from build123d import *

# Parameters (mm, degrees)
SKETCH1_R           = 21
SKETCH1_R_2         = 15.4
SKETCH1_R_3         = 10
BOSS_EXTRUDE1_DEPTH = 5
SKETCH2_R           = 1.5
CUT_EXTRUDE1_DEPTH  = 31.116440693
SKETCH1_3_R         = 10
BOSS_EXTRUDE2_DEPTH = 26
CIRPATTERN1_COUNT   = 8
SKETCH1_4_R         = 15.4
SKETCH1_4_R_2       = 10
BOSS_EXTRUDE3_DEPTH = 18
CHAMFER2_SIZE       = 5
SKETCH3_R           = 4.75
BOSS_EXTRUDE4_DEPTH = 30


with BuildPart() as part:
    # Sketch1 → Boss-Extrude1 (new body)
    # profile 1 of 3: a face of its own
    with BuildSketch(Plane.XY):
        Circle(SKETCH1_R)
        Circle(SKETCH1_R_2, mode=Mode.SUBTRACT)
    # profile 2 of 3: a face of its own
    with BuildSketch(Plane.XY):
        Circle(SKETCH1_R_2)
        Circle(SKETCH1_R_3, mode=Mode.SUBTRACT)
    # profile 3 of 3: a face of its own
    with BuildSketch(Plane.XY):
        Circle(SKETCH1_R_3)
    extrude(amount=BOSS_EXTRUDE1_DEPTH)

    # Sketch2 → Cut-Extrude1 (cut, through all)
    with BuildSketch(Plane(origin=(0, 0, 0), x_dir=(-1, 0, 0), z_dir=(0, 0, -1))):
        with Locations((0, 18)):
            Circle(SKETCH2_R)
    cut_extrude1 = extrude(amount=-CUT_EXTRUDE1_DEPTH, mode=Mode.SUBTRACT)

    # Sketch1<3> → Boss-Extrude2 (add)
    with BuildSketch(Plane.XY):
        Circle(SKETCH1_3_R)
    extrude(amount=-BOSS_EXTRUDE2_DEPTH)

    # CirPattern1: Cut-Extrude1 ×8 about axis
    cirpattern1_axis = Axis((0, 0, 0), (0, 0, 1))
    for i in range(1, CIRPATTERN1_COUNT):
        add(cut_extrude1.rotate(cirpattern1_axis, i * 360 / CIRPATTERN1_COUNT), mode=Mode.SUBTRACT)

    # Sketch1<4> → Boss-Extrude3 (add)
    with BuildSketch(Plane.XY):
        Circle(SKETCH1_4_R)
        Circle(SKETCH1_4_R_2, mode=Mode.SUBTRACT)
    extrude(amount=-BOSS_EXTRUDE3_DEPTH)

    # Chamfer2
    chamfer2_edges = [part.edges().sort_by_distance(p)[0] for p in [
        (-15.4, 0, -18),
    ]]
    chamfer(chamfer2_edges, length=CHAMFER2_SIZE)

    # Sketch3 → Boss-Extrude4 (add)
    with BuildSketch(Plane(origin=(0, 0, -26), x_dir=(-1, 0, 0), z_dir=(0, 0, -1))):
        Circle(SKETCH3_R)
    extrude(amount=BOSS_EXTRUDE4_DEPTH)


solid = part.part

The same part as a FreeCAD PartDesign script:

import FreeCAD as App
import Part
import Sketcher


def edges_at(feature, points):
    """Names of the edges that pass closest to the given points."""
    edges = feature.Shape.Edges
    near = lambda p: min(range(len(edges)), key=lambda i: edges[i].distToShape(Part.Vertex(*p))[0])
    return sorted({f"Edge{near(p) + 1}" for p in points})

doc = App.newDocument("Part")
body = doc.addObject("PartDesign::Body", "Body")

# Sketch on XY plane
sketch1 = doc.addObject("Sketcher::SketchObject", "Sketch")
body.addObject(sketch1)
sketch1.AttachmentSupport = (doc.XY_Plane, [""])
sketch1.MapMode = "FlatFace"
sketch1.addGeometry(Part.Circle(App.Vector(0, 0, 0), App.Vector(0, 0, 1), 21), False)
sketch1.addConstraint([
    Sketcher.Constraint("Coincident", 0, 3, -1, 1),
    Sketcher.Constraint("Diameter", 0, 42.0),
])
pad1 = doc.addObject("PartDesign::Pad", "Pad")
body.addObject(pad1)
pad1.Profile = sketch1
pad1.Length = 5

# Sketch on XY plane
sketch2 = doc.addObject("Sketcher::SketchObject", "Sketch001")
body.addObject(sketch2)
sketch2.AttachmentSupport = (doc.XY_Plane, [""])
sketch2.MapMode = "FlatFace"
sketch2.addGeometry(Part.Circle(App.Vector(0, 18, 0), App.Vector(0, 0, 1), 1.5), False)
sketch2.addConstraint([
    Sketcher.Constraint("PointOnObject", 0, 3, -2),
    Sketcher.Constraint("Diameter", 0, 3.0),
    Sketcher.Constraint("DistanceY", -1, 1, 0, 3, 18.0),
])
pocket1 = doc.addObject("PartDesign::Pocket", "Pocket")
body.addObject(pocket1)
pocket1.Profile = sketch2
pocket1.Type = "ThroughAll"
pocket1.Reversed = True

# Sketch on XY plane
sketch3 = doc.addObject("Sketcher::SketchObject", "Sketch002")
body.addObject(sketch3)
sketch3.AttachmentSupport = (doc.XY_Plane, [""])
sketch3.MapMode = "FlatFace"
sketch3.addGeometry(Part.Circle(App.Vector(0, 0, 0), App.Vector(0, 0, 1), 10), False)
sketch3.addConstraint([
    Sketcher.Constraint("Coincident", 0, 3, -1, 1),
    Sketcher.Constraint("Diameter", 0, 20.0),
])
pad2 = doc.addObject("PartDesign::Pad", "Pad001")
body.addObject(pad2)
pad2.Profile = sketch3
pad2.Length = 26
pad2.Reversed = True
doc.recompute()

polarpattern = doc.addObject("PartDesign::PolarPattern", "PolarPattern")
body.addObject(polarpattern)
polarpattern.Originals = [pocket1]
polarpattern.Axis = (doc.Z_Axis, [""])
polarpattern.Angle = 360
polarpattern.Occurrences = 8
body.Tip = polarpattern

# Sketch on XY plane
sketch4 = doc.addObject("Sketcher::SketchObject", "Sketch003")
body.addObject(sketch4)
sketch4.AttachmentSupport = (doc.XY_Plane, [""])
sketch4.MapMode = "FlatFace"
sketch4.addGeometry([
    Part.Circle(App.Vector(0, 0, 0), App.Vector(0, 0, 1), 15),
    Part.Circle(App.Vector(0, 0, 0), App.Vector(0, 0, 1), 10),
], False)
sketch4.addConstraint([
    Sketcher.Constraint("Coincident", 0, 3, -1, 1),
    Sketcher.Constraint("Coincident", 1, 3, -1, 1),
    Sketcher.Constraint("Diameter", 1, 20.0),
    Sketcher.Constraint("Diameter", 0, 30.8),
])
pad3 = doc.addObject("PartDesign::Pad", "Pad002")
body.addObject(pad3)
pad3.Profile = sketch4
pad3.Length = 18
pad3.Reversed = True
doc.recompute()

chamfer = doc.addObject("PartDesign::Chamfer", "Chamfer")
body.addObject(chamfer)
chamfer.Base = (pad3, edges_at(pad3, [(-15.4, 0, -18)]))
chamfer.Size = 5

# Sketch on XY plane
sketch5 = doc.addObject("Sketcher::SketchObject", "Sketch004")
body.addObject(sketch5)
sketch5.AttachmentSupport = (doc.XY_Plane, [""])
sketch5.MapMode = "FlatFace"
sketch5.AttachmentOffset = App.Placement(App.Vector(0, 0, -26), App.Rotation())
sketch5.addGeometry(Part.Circle(App.Vector(0, 0, 0), App.Vector(0, 0, 1), 4.8), False)
sketch5.addConstraint([
    Sketcher.Constraint("Coincident", 0, 3, -1, 1),
    Sketcher.Constraint("Diameter", 0, 9.5),
])
pad4 = doc.addObject("PartDesign::Pad", "Pad003")
body.addObject(pad4)
pad4.Profile = sketch5
pad4.Length = 30
pad4.Reversed = True

doc.recompute()
